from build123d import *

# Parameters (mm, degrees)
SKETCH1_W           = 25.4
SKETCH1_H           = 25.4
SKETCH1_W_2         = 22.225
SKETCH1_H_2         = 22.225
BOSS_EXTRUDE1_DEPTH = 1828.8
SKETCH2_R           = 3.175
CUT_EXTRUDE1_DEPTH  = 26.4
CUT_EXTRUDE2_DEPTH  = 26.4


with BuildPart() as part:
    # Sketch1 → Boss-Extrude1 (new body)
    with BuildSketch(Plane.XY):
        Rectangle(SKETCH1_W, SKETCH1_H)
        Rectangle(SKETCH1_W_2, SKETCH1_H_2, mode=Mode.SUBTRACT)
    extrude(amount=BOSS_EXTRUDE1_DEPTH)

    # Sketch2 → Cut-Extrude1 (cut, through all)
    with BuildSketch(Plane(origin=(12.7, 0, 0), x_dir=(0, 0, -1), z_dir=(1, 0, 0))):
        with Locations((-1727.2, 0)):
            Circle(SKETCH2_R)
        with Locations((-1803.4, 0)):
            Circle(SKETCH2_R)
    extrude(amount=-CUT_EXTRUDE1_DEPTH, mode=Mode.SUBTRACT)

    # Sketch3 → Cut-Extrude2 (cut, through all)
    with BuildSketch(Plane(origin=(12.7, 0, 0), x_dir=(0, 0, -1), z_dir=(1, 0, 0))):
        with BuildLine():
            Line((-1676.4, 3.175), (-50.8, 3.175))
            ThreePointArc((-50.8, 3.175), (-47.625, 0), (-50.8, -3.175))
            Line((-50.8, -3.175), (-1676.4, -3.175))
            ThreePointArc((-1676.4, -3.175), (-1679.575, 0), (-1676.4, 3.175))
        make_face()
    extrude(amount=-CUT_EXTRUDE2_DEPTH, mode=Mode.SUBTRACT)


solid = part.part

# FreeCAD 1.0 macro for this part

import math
import FreeCAD as App
import Part
import Sketcher

V = App.Vector
Q = App.Units.Quantity

doc = App.newDocument("Part")
body = doc.addObject("PartDesign::Body", "Body")

# Sketch on XY plane
sketch1 = body.newObject("Sketcher::SketchObject", "Sketch")
sketch1.AttachmentSupport = (doc.getObject("XY_Plane"), [""])
sketch1.MapMode = "FlatFace"
sketch1.addGeometry([
    Part.LineSegment(V(-13, 13, 0), V(-13, -13, 0)),  # 0
    Part.LineSegment(V(-13, -13, 0), V(13, -13, 0)),  # 1
    Part.LineSegment(V(13, -13, 0), V(13, 13, 0)),  # 2
    Part.LineSegment(V(13, 13, 0), V(-13, 13, 0)),  # 3
    Part.LineSegment(V(11, -11, 0), V(-11, -11, 0)),  # 4
    Part.LineSegment(V(-11, -11, 0), V(-11, 11, 0)),  # 5
    Part.LineSegment(V(-11, 11, 0), V(11, 11, 0)),  # 6
    Part.LineSegment(V(11, 11, 0), V(11, -11, 0)),  # 7
], False)
sketch1.addConstraint([
    Sketcher.Constraint("Coincident", 0, 2, 1, 1),
    Sketcher.Constraint("Coincident", 1, 2, 2, 1),
    Sketcher.Constraint("Coincident", 2, 2, 3, 1),
    Sketcher.Constraint("Coincident", 3, 2, 0, 1),
    Sketcher.Constraint("Coincident", 4, 2, 5, 1),
    Sketcher.Constraint("Coincident", 5, 2, 6, 1),
    Sketcher.Constraint("Coincident", 6, 2, 7, 1),
    Sketcher.Constraint("Coincident", 7, 2, 4, 1),
    Sketcher.Constraint("Vertical", 0),
    Sketcher.Constraint("Horizontal", 1),
    Sketcher.Constraint("Vertical", 2),
    Sketcher.Constraint("Horizontal", 3),
    Sketcher.Constraint("Horizontal", 4),
    Sketcher.Constraint("Vertical", 5),
    Sketcher.Constraint("Horizontal", 6),
    Sketcher.Constraint("Vertical", 7),
    Sketcher.Constraint("Symmetric", 0, 2, 2, 2, -1, 1),
    Sketcher.Constraint("Symmetric", 4, 2, 6, 2, -1, 1),
    Sketcher.Constraint("Equal", 3, 0),
    Sketcher.Constraint("Equal", 6, 5),
    Sketcher.Constraint("DistanceX", 1, 1, 1, 2, Q("1 in")),
    Sketcher.Constraint("DistanceX", 4, 2, 4, 1, Q("0.875 in")),
])
pad1 = body.newObject("PartDesign::Pad", "Pad")
pad1.Profile = sketch1
pad1.Length = Q("72 in")

# Sketch on YZ plane
sketch2 = body.newObject("Sketcher::SketchObject", "Sketch001")
sketch2.AttachmentSupport = (doc.getObject("YZ_Plane"), [""])
sketch2.MapMode = "FlatFace"
sketch2.AttachmentOffset = App.Placement(V(0, 0, 0.5 * 25.4), App.Rotation())
sketch2.addGeometry([
    Part.Circle(V(0, 1727.2, 0), V(0, 0, 1), 3.2),
    Part.Circle(V(0, 1803.4, 0), V(0, 0, 1), 3.2),
], False)
sketch2.addConstraint([
    Sketcher.Constraint("Equal", 0, 1),
    Sketcher.Constraint("PointOnObject", 0, 3, -2),
    Sketcher.Constraint("PointOnObject", 1, 3, -2),
    Sketcher.Constraint("Diameter", 0, Q("0.25 in")),
    Sketcher.Constraint("DistanceY", -1, 1, 0, 3, Q("68 in")),
    Sketcher.Constraint("DistanceY", -1, 1, 1, 3, Q("71 in")),
])
pocket1 = body.newObject("PartDesign::Pocket", "Pocket")
pocket1.Profile = sketch2
pocket1.Type = "ThroughAll"

# Sketch on YZ plane
sketch3 = body.newObject("Sketcher::SketchObject", "Sketch002")
sketch3.AttachmentSupport = (doc.getObject("YZ_Plane"), [""])
sketch3.MapMode = "FlatFace"
sketch3.AttachmentOffset = App.Placement(V(0, 0, 0.5 * 25.4), App.Rotation())
sketch3.addGeometry([
    Part.LineSegment(V(3.2, 50.8, 0), V(3.2, 1676.4, 0)),
    Part.ArcOfCircle(Part.Circle(V(0, 1676.4, 0), V(0, 0, 1), 3.2), math.radians(0), math.radians(180)),
    Part.LineSegment(V(-3.2, 1676.4, 0), V(-3.2, 50.8, 0)),
    Part.ArcOfCircle(Part.Circle(V(0, 50.8, 0), V(0, 0, 1), 3.2), math.radians(180), math.radians(360)),
], False)
sketch3.addConstraint([
    Sketcher.Constraint("Tangent", 0, 2, 1, 1),
    Sketcher.Constraint("Tangent", 1, 2, 2, 1),
    Sketcher.Constraint("Tangent", 2, 2, 3, 1),
    Sketcher.Constraint("Tangent", 3, 2, 0, 1),
    Sketcher.Constraint("Vertical", 0),
    Sketcher.Constraint("Vertical", 2),
    Sketcher.Constraint("PointOnObject", 1, 3, -2),
    Sketcher.Constraint("DistanceY", 0, 1, 0, 2, Q("64 in")),
    Sketcher.Constraint("DistanceY", -1, 1, 1, 3, Q("66 in")),
    Sketcher.Constraint("Radius", 1, Q("0.125 in")),
])
pocket2 = body.newObject("PartDesign::Pocket", "Pocket001")
pocket2.Profile = sketch3
pocket2.Type = "ThroughAll"

doc.recompute()
